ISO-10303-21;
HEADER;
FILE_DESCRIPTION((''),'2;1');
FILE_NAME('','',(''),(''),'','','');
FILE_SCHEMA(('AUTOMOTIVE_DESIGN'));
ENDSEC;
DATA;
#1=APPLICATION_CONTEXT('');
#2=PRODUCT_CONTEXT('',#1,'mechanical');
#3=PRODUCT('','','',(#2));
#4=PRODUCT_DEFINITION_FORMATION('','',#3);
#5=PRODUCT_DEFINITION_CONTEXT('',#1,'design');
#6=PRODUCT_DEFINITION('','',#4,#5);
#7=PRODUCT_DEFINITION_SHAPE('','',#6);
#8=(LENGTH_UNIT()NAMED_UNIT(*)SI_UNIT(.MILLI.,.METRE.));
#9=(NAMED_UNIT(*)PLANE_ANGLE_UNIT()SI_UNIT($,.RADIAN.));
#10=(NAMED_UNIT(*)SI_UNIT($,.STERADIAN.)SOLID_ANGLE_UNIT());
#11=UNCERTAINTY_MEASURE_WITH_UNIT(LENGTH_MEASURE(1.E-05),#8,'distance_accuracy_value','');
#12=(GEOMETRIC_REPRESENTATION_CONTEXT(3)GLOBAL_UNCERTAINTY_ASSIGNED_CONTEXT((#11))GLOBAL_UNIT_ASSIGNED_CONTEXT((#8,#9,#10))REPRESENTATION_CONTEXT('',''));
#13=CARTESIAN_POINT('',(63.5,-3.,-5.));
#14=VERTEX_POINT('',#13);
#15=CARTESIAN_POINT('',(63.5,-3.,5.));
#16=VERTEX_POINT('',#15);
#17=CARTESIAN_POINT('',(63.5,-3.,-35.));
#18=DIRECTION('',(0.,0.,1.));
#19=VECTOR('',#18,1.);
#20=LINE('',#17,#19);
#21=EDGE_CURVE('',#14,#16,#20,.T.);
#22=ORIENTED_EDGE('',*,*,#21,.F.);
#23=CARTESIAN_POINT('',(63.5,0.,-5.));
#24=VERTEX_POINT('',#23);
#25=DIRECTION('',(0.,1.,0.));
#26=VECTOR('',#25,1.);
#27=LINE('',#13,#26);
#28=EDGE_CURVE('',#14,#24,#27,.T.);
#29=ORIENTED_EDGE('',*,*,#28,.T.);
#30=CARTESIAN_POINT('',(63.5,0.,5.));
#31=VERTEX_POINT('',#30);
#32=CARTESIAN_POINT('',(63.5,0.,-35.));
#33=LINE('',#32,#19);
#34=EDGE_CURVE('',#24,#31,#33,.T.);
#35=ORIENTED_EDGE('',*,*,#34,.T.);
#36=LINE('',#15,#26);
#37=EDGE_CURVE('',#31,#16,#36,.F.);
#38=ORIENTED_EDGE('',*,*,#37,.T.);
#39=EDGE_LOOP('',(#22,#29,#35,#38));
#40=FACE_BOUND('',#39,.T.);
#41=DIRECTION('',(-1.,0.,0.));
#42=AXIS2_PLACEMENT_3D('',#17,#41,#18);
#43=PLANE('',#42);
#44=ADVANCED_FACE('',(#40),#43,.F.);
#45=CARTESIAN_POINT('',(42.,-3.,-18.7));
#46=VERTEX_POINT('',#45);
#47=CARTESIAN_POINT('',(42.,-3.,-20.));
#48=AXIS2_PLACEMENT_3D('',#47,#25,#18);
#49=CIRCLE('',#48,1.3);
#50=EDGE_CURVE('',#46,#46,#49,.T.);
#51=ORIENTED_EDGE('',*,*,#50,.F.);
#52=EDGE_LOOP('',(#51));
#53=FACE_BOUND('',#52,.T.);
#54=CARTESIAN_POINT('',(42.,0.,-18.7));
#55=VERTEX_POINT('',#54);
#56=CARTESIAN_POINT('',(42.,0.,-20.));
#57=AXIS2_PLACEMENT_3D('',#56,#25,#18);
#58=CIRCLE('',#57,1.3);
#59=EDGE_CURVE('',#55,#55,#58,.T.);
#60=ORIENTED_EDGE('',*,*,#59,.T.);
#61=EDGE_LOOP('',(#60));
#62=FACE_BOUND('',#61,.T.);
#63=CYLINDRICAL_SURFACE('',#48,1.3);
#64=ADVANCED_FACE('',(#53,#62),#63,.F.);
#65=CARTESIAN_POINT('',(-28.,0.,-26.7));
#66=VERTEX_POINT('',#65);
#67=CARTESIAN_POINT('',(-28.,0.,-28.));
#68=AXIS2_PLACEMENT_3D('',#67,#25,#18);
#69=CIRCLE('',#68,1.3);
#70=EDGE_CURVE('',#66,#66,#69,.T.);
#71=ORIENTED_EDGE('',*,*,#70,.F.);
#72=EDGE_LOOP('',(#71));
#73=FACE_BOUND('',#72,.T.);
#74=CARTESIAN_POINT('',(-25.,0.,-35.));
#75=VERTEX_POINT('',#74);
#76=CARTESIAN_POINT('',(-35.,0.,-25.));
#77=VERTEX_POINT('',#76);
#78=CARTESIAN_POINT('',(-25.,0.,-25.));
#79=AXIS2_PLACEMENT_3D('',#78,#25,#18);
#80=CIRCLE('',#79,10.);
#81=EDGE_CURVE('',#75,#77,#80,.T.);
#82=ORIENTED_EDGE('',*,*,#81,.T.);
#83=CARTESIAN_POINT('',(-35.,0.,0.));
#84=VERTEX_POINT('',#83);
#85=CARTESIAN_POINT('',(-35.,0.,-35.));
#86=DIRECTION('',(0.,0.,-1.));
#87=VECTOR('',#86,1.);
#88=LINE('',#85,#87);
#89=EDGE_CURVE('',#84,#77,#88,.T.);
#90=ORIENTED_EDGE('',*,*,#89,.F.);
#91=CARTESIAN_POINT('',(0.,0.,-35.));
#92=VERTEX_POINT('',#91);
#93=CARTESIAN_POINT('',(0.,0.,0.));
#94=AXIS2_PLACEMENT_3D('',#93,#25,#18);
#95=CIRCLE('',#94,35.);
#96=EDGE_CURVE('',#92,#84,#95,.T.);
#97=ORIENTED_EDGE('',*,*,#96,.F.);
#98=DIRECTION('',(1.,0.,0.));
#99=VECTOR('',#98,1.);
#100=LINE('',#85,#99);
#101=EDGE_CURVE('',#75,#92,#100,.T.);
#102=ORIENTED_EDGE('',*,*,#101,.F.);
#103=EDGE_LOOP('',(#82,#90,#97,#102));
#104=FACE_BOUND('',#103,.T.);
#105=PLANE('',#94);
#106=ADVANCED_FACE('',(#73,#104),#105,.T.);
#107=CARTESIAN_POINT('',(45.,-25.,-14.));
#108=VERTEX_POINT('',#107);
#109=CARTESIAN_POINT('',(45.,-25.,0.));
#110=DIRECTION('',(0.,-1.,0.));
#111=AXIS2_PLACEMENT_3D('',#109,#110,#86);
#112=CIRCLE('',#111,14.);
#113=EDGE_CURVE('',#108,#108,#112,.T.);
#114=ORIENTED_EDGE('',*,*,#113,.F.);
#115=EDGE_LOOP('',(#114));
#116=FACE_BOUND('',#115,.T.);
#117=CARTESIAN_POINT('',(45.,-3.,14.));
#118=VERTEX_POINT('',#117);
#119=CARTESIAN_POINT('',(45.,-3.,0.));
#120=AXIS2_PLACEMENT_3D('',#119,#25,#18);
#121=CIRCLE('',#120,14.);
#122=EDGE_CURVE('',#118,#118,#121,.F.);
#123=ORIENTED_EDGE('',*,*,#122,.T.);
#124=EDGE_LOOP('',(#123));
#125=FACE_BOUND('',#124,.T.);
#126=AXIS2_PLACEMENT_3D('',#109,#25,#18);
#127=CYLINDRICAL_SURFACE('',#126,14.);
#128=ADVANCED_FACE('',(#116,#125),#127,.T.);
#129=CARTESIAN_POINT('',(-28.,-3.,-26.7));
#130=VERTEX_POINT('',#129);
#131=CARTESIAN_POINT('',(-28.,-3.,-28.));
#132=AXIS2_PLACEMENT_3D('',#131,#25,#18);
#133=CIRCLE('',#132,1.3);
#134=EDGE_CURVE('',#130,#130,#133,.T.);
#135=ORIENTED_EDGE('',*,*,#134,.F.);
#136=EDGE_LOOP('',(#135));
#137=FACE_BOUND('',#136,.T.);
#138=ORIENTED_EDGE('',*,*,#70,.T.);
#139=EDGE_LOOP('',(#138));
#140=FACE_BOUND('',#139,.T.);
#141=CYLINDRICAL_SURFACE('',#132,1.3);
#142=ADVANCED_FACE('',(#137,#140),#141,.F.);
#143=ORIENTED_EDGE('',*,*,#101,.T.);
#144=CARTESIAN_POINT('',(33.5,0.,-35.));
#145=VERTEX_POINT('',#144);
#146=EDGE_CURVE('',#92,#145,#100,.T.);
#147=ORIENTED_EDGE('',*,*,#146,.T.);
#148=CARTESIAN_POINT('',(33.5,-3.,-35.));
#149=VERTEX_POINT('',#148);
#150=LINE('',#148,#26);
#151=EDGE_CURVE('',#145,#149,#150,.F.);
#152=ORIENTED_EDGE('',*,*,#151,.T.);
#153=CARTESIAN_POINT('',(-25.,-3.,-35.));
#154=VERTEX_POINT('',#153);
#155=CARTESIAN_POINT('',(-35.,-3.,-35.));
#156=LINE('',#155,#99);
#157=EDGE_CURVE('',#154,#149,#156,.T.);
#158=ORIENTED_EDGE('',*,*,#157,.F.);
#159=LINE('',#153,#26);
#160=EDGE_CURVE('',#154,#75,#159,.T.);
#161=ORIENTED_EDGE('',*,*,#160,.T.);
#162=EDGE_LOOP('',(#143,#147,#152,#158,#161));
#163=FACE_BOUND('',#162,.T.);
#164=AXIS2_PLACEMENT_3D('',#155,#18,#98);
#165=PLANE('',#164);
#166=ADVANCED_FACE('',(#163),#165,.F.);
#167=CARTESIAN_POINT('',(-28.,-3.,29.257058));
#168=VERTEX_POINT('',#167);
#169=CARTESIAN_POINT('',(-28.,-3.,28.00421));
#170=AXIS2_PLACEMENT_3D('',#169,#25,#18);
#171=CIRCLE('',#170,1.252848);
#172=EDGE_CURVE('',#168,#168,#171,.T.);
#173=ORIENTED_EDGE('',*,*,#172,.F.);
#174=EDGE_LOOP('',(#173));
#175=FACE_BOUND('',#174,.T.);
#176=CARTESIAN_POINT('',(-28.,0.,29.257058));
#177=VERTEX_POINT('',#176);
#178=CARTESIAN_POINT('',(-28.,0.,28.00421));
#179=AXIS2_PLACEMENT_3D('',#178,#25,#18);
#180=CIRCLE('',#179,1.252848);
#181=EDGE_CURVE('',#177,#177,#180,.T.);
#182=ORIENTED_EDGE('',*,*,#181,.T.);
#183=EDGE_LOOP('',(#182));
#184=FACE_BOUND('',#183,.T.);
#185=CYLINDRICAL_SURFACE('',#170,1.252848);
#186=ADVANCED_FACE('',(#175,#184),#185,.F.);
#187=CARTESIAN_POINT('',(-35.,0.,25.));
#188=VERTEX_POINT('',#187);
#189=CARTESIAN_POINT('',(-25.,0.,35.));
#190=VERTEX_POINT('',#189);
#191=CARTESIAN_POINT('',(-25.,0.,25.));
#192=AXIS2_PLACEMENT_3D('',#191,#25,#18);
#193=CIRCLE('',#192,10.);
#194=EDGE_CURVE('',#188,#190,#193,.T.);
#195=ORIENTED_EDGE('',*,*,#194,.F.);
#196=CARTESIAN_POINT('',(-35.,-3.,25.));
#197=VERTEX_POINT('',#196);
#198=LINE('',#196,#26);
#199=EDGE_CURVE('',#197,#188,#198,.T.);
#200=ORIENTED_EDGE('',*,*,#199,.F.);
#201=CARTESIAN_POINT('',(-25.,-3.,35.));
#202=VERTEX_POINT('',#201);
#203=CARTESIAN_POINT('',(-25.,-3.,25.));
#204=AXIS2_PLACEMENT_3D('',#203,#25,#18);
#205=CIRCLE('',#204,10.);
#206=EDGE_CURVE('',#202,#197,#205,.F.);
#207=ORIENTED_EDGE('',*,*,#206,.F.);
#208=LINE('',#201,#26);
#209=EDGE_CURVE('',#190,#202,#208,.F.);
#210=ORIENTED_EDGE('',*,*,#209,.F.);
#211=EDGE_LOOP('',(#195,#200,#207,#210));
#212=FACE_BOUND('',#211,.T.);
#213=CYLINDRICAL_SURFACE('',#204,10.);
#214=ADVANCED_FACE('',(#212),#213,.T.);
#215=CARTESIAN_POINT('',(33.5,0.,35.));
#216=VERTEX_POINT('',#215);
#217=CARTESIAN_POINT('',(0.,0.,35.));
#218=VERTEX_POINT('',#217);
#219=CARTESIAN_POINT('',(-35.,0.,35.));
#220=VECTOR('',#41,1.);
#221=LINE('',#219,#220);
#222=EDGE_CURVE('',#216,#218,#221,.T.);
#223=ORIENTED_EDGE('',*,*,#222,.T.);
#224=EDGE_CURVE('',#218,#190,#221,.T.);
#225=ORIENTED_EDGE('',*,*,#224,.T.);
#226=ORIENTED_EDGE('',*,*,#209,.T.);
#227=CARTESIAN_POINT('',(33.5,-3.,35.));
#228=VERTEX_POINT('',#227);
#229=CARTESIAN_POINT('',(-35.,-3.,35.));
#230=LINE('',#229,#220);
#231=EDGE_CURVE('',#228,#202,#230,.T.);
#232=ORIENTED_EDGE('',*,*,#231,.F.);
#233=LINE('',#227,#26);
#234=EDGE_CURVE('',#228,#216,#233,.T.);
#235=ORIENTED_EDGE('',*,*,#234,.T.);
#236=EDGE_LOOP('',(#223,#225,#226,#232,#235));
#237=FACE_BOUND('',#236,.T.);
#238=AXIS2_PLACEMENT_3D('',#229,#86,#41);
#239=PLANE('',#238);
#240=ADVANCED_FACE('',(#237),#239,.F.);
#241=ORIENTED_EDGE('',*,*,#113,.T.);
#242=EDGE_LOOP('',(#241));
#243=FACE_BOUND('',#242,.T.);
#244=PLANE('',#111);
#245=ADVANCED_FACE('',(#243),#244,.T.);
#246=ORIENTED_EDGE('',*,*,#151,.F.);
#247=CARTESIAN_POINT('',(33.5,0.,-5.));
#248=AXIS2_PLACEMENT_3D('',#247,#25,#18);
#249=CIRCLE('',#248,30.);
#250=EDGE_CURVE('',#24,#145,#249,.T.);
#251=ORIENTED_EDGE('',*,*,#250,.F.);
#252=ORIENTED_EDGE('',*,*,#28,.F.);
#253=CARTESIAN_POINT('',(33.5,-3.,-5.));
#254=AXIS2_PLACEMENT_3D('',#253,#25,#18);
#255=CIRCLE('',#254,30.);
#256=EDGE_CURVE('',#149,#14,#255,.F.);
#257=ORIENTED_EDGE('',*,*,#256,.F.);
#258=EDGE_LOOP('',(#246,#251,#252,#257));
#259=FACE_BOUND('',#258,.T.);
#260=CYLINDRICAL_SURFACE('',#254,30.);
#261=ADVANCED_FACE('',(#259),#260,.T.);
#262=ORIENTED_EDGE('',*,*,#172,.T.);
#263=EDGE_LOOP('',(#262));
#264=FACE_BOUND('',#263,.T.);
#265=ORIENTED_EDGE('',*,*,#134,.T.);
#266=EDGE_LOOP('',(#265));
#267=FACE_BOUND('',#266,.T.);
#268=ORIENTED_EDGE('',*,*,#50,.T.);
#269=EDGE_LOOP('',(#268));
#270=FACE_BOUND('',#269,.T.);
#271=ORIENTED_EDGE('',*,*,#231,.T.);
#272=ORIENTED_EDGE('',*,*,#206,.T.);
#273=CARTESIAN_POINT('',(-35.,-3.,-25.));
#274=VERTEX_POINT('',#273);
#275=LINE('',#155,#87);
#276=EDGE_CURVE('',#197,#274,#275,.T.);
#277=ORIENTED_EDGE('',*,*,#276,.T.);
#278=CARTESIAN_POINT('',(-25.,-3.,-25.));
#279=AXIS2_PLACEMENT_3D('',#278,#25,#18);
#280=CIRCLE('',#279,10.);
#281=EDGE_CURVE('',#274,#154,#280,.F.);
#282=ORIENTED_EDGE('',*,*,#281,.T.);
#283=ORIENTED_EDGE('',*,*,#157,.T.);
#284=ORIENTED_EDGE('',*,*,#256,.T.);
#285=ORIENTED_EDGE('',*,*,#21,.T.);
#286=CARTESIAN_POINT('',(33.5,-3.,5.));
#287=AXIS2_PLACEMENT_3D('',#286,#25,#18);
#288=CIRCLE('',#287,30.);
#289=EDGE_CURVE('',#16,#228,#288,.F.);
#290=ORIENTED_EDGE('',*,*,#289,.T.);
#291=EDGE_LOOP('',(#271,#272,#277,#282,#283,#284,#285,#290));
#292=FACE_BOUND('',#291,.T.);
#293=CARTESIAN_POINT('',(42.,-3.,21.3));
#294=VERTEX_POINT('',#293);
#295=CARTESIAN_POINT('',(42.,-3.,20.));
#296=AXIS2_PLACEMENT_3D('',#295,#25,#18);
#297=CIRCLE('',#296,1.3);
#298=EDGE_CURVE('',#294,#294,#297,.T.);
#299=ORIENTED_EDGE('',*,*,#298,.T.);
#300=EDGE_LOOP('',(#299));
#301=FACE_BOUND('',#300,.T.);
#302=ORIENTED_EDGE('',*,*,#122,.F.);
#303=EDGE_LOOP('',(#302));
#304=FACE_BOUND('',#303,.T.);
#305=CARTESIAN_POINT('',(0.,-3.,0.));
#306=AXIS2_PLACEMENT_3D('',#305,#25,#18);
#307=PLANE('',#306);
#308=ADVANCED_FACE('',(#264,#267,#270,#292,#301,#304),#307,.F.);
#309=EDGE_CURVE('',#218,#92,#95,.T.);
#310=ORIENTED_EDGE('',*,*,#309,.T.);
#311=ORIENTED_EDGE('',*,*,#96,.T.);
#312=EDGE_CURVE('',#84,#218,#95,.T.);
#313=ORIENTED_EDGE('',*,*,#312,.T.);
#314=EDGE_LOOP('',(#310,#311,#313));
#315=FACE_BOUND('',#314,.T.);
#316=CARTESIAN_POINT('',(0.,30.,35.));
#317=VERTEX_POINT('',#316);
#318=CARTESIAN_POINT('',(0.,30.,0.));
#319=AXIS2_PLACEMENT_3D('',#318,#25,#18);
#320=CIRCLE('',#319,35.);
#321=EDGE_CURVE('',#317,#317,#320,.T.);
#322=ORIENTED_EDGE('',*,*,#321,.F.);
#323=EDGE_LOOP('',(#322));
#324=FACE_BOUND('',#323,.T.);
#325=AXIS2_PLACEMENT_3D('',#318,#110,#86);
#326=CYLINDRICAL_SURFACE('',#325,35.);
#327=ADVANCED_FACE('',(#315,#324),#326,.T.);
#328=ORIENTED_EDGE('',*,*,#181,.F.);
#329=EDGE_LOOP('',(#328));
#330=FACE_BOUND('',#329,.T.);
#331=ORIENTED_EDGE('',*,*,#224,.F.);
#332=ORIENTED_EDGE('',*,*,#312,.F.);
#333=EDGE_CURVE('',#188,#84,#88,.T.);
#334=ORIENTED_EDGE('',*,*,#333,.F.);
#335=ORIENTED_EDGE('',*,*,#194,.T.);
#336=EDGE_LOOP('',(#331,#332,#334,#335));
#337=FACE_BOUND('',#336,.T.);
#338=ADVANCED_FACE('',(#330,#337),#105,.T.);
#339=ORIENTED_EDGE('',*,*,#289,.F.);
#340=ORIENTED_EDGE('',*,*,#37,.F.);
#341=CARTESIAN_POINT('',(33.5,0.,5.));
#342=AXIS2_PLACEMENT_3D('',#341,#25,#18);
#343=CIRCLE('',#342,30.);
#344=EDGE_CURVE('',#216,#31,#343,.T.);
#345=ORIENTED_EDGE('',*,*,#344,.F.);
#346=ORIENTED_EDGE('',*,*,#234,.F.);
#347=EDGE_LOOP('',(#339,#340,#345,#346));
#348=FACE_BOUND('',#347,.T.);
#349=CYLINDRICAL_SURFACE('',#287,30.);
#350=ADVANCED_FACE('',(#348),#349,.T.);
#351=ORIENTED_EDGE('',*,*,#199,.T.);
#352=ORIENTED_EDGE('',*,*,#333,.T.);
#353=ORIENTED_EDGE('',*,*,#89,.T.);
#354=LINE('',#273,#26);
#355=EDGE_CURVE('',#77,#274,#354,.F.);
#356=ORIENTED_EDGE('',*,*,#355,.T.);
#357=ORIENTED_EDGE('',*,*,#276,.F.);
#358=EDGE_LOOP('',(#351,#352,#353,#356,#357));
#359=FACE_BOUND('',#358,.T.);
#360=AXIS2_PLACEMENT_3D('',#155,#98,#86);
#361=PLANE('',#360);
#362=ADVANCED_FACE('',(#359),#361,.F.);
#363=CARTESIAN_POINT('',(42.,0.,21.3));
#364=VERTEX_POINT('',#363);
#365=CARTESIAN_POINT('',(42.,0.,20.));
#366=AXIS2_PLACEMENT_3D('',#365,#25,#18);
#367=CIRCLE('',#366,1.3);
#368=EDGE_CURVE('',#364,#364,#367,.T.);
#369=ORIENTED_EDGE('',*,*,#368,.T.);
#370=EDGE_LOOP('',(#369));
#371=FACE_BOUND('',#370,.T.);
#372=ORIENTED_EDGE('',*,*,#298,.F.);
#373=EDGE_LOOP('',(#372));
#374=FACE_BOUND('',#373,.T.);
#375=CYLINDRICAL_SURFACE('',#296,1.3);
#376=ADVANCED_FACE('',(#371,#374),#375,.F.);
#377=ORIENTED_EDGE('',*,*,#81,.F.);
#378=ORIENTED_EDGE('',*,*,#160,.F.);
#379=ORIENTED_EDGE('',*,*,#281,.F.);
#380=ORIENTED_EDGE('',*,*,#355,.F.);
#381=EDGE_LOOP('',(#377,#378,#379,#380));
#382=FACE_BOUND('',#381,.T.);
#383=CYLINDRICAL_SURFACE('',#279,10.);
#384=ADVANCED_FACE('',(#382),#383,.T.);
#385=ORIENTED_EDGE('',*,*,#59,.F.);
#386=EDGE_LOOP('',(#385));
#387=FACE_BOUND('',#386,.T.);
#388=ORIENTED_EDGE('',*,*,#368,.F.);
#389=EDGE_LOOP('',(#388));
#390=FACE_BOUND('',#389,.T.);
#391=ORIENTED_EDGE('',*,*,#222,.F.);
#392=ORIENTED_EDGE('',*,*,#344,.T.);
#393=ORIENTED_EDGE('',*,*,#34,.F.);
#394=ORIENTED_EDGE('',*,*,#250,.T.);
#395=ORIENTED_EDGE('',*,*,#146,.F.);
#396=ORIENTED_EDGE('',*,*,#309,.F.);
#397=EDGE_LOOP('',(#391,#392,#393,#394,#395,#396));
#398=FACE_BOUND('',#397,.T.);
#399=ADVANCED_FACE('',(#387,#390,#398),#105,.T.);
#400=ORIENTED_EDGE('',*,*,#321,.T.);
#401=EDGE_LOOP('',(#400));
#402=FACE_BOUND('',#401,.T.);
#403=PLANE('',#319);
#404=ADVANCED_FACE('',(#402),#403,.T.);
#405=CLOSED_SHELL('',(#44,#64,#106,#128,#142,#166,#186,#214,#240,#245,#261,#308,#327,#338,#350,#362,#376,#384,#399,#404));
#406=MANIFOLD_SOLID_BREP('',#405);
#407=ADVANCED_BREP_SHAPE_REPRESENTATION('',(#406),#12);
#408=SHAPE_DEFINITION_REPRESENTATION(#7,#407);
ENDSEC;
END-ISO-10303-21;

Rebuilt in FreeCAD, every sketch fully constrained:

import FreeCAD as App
import Part
import Sketcher


def edges_at(feature, points):
    """Names of the edges that pass closest to the given points."""
    edges = feature.Shape.Edges
    near = lambda p: min(range(len(edges)), key=lambda i: edges[i].distToShape(Part.Vertex(*p))[0])
    return sorted({f"Edge{near(p) + 1}" for p in points})

doc = App.newDocument("Part")
body = doc.addObject("PartDesign::Body", "Body")

sketch1 = body.newObject("Sketcher::SketchObject", "Sketch")
sketch1.AttachmentSupport = (doc.getObject("XZ_Plane"), [""])
sketch1.MapMode = "FlatFace"
sketch1.addGeometry(Part.Circle(App.Vector(0, 0, 0), App.Vector(0, 0, 1), 35), False)
sketch1.addConstraint(Sketcher.Constraint("Coincident", 0, 3, -1, 1))
sketch1.addConstraint(Sketcher.Constraint("Diameter", 0, 70.0))
pad1 = body.newObject("PartDesign::Pad", "Pad")
pad1.Profile = sketch1
pad1.Length = 30
pad1.Reversed = True

sketch2 = body.newObject("Sketcher::SketchObject", "Sketch001")
sketch2.AttachmentSupport = (doc.getObject("XZ_Plane"), [""])
sketch2.MapMode = "FlatFace"
sketch2.addGeometry(Part.LineSegment(App.Vector(-35, 35, 0), App.Vector(-35, -35, 0)), False)
sketch2.addGeometry(Part.LineSegment(App.Vector(-35, -35, 0), App.Vector(63.5, -35, 0)), False)
sketch2.addGeometry(Part.LineSegment(App.Vector(63.5, -35, 0), App.Vector(63.5, 35, 0)), False)
sketch2.addGeometry(Part.LineSegment(App.Vector(63.5, 35, 0), App.Vector(-35, 35, 0)), False)
sketch2.addConstraint(Sketcher.Constraint("Coincident", 0, 2, 1, 1))
sketch2.addConstraint(Sketcher.Constraint("Coincident", 1, 2, 2, 1))
sketch2.addConstraint(Sketcher.Constraint("Coincident", 2, 2, 3, 1))
sketch2.addConstraint(Sketcher.Constraint("Coincident", 3, 2, 0, 1))
sketch2.addConstraint(Sketcher.Constraint("Vertical", 0))
sketch2.addConstraint(Sketcher.Constraint("Horizontal", 1))
sketch2.addConstraint(Sketcher.Constraint("Vertical", 2))
sketch2.addConstraint(Sketcher.Constraint("Horizontal", 3))
sketch2.addConstraint(Sketcher.Constraint("DistanceY", 0, 2, 0, 1, 70.0))
sketch2.addConstraint(Sketcher.Constraint("DistanceX", 1, 1, 1, 2, 98.5))
sketch2.addConstraint(Sketcher.Constraint("DistanceX", 0, 2, -1, 1, 35.0))
sketch2.addConstraint(Sketcher.Constraint("DistanceY", 0, 2, -1, 1, 35.0))
pad2 = body.newObject("PartDesign::Pad", "Pad001")
pad2.Profile = sketch2
pad2.Length = 3
doc.recompute()

fillet = body.newObject("PartDesign::Fillet", "Fillet")
fillet.Base = (pad2, edges_at(pad2, [(-35, -1.5, 35), (-35, -1.5, -35)]))
fillet.Radius = 10
doc.recompute()

fillet2 = body.newObject("PartDesign::Fillet", "Fillet001")
fillet2.Base = (fillet, edges_at(fillet, [(63.5, -1.5, -35)]))
fillet2.Radius = 30
doc.recompute()

fillet3 = body.newObject("PartDesign::Fillet", "Fillet002")
fillet3.Base = (fillet2, edges_at(fillet2, [(63.5, -1.5, 35)]))
fillet3.Radius = 30

sketch3 = body.newObject("Sketcher::SketchObject", "Sketch002")
sketch3.AttachmentSupport = (doc.getObject("XZ_Plane"), [""])
sketch3.MapMode = "FlatFace"
sketch3.addGeometry(Part.Circle(App.Vector(-28, -28, 0), App.Vector(0, 0, 1), 1.3), False)
sketch3.addGeometry(Part.Circle(App.Vector(-28, 28.00421, 0), App.Vector(0, 0, 1), 1.252848), False)
sketch3.addGeometry(Part.Circle(App.Vector(42, -20, 0), App.Vector(0, 0, 1), 1.3), False)
sketch3.addGeometry(Part.Circle(App.Vector(42, 20, 0), App.Vector(0, 0, 1), 1.3), False)
sketch3.addConstraint(Sketcher.Constraint("Equal", 0, 2))
sketch3.addConstraint(Sketcher.Constraint("Equal", 2, 3))
sketch3.addConstraint(Sketcher.Constraint("Symmetric", 2, 3, 3, 3, -1))
sketch3.addConstraint(Sketcher.Constraint("Vertical", 0, 3, 1, 3))
sketch3.addConstraint(Sketcher.Constraint("Diameter", 0, 2.6))
sketch3.addConstraint(Sketcher.Constraint("DistanceX", 0, 3, -1, 1, 28.0))
sketch3.addConstraint(Sketcher.Constraint("DistanceY", 0, 3, -1, 1, 28.0))
sketch3.addConstraint(Sketcher.Constraint("DistanceX", -1, 1, 2, 3, 42.0))
sketch3.addConstraint(Sketcher.Constraint("DistanceY", 2, 3, -1, 1, 20.0))
sketch3.addConstraint(Sketcher.Constraint("Diameter", 1, 2.505697))
sketch3.addConstraint(Sketcher.Constraint("DistanceY", -1, 1, 1, 3, 28.00421))
pocket1 = body.newObject("PartDesign::Pocket", "Pocket")
pocket1.Profile = sketch3
pocket1.Length = 3
pocket1.Reversed = True

sketch4 = body.newObject("Sketcher::SketchObject", "Sketch003")
sketch4.AttachmentSupport = (doc.getObject("XZ_Plane"), [""])
sketch4.MapMode = "FlatFace"
sketch4.AttachmentOffset = App.Placement(App.Vector(0, 0, 3), App.Rotation())
sketch4.addGeometry(Part.Circle(App.Vector(45, 0, 0), App.Vector(0, 0, 1), 14), False)
sketch4.addConstraint(Sketcher.Constraint("PointOnObject", 0, 3, -1))
sketch4.addConstraint(Sketcher.Constraint("Diameter", 0, 28.0))
sketch4.addConstraint(Sketcher.Constraint("DistanceX", -1, 1, 0, 3, 45.0))
pad3 = body.newObject("PartDesign::Pad", "Pad002")
pad3.Profile = sketch4
pad3.Length = 22

doc.recompute()
